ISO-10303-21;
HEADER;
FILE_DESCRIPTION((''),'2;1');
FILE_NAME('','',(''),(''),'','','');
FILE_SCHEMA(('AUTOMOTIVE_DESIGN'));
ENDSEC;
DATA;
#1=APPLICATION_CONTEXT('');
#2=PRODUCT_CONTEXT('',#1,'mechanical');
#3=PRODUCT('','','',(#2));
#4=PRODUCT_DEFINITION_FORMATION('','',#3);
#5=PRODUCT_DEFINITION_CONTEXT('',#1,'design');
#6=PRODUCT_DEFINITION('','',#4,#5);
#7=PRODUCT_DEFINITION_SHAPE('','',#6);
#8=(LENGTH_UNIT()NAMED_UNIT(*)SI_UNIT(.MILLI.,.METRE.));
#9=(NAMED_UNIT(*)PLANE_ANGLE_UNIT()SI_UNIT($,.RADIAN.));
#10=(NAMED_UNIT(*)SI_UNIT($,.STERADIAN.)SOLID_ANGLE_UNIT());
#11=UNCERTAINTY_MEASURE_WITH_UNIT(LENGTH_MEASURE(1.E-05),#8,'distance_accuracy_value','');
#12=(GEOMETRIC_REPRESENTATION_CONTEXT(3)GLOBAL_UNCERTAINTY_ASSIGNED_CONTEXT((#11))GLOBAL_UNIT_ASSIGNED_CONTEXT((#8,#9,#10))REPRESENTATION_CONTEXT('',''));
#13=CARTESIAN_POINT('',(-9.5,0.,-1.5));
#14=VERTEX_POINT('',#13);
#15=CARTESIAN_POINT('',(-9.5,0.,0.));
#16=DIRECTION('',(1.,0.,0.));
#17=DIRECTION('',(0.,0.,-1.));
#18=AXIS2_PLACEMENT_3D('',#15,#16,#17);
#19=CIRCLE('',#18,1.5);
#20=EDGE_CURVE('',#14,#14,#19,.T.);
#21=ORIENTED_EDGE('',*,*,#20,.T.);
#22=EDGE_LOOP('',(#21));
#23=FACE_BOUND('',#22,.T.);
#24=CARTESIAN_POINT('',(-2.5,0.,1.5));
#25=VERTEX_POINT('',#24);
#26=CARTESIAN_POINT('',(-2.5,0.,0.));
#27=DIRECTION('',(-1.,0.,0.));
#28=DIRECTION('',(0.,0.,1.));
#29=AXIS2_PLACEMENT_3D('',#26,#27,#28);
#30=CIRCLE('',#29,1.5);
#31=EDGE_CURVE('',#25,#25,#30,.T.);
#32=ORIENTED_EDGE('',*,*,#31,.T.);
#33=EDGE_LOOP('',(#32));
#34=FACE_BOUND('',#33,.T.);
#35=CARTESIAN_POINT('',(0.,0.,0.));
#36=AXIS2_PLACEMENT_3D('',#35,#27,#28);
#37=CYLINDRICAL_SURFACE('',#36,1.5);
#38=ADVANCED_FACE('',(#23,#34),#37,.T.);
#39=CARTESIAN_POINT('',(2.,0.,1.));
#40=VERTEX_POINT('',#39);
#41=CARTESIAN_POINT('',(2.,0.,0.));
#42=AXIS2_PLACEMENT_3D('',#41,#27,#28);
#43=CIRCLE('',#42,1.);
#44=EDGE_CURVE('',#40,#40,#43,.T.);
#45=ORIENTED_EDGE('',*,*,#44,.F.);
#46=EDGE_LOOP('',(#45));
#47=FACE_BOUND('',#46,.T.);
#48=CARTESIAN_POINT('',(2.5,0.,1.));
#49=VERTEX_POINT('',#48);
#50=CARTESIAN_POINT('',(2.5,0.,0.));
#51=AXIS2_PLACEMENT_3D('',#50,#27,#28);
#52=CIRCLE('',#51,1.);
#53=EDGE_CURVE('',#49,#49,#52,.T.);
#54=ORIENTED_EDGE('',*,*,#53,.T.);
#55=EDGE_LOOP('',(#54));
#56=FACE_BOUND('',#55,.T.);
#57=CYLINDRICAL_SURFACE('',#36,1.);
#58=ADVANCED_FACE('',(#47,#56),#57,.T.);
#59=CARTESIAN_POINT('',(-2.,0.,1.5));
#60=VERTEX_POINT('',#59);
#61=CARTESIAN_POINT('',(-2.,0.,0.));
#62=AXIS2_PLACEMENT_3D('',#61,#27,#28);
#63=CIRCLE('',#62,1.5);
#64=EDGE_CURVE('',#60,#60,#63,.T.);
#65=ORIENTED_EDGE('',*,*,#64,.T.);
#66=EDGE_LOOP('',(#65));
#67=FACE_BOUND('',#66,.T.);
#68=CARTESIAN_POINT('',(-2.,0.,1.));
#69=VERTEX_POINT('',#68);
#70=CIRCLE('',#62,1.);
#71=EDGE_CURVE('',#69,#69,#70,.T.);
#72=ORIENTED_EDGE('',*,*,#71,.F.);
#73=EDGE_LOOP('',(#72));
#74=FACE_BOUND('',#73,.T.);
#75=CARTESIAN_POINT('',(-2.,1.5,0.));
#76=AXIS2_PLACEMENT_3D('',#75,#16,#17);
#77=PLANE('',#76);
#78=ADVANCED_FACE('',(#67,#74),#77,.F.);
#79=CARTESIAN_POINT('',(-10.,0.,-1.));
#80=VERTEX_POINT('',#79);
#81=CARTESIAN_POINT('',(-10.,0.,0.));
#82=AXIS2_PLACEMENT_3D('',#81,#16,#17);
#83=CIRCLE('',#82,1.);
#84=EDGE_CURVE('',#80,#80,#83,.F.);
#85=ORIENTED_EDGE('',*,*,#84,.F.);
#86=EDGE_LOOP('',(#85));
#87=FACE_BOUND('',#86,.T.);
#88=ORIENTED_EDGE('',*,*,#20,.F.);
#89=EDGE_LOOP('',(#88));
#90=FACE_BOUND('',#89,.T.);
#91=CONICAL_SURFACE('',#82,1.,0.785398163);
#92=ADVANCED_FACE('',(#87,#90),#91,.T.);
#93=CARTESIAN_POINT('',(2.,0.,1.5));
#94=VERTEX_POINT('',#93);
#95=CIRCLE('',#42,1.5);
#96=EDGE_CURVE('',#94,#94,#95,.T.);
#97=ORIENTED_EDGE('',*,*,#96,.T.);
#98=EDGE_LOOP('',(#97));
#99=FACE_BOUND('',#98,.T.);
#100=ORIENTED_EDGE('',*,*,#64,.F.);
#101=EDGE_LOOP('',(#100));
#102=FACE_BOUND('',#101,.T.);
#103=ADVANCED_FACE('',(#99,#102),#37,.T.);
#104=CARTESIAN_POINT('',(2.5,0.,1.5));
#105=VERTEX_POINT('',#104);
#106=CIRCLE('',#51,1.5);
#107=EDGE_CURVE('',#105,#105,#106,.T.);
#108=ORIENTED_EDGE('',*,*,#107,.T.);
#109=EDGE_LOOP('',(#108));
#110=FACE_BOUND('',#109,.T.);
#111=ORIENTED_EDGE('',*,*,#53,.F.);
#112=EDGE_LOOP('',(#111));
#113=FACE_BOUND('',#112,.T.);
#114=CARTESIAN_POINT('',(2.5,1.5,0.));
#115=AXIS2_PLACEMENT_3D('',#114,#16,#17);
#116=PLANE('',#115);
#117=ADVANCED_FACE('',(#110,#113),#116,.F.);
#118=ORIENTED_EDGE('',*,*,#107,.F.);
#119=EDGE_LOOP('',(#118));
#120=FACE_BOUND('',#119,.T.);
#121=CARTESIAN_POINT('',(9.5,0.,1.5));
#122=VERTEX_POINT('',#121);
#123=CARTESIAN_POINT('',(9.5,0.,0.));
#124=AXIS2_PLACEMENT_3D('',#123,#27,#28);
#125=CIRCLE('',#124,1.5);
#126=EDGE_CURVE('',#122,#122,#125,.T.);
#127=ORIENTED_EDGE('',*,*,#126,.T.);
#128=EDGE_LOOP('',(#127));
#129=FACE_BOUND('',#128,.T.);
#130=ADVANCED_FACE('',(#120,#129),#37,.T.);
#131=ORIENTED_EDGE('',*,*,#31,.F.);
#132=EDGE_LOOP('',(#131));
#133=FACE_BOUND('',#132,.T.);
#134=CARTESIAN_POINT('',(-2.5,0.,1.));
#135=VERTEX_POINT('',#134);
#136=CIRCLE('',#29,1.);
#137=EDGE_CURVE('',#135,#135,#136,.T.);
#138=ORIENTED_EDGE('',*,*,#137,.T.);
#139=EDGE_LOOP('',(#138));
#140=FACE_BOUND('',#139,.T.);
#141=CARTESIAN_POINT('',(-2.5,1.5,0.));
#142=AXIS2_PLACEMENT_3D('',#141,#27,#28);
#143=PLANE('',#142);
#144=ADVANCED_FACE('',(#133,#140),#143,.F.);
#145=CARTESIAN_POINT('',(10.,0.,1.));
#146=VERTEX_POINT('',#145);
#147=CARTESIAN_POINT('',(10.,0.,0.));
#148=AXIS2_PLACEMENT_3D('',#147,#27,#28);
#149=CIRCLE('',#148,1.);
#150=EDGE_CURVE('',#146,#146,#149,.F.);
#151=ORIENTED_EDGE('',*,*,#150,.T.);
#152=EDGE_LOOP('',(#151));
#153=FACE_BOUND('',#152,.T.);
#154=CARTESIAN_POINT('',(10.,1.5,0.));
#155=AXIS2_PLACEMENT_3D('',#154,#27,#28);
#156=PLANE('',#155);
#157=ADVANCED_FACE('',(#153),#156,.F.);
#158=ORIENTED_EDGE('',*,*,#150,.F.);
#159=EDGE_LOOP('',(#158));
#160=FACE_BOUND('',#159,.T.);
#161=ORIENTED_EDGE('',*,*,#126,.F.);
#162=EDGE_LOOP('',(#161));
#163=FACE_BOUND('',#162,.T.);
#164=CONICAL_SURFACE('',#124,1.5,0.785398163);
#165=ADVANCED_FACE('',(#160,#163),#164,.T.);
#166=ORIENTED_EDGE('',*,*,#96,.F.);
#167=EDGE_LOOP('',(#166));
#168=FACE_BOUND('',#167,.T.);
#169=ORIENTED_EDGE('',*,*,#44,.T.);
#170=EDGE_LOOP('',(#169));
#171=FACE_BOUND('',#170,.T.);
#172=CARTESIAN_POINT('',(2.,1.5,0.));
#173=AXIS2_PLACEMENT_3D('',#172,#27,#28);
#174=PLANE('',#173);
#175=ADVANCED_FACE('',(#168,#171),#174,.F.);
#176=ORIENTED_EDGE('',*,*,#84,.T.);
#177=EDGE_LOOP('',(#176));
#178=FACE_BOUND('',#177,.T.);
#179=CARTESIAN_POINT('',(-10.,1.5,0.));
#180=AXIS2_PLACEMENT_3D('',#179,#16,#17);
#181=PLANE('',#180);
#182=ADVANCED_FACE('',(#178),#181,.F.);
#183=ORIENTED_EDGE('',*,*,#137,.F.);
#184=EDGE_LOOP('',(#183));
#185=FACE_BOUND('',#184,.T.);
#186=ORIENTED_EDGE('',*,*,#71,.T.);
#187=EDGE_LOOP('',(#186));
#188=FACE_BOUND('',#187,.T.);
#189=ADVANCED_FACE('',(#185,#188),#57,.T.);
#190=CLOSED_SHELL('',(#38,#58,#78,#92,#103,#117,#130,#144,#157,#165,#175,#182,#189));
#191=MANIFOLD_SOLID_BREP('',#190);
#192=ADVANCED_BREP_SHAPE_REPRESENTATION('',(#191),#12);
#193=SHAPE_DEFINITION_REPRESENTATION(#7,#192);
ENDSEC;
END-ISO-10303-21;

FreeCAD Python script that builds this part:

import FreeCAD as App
import Part
import Sketcher
from FreeCAD import Vector


def edges_at(feature, points):
    """Names of the edges that pass closest to the given points."""
    edges = feature.Shape.Edges
    near = lambda p: min(range(len(edges)), key=lambda i: edges[i].distToShape(Part.Vertex(*p))[0])
    return sorted({f"Edge{near(p) + 1}" for p in points})

doc = App.newDocument("Part")
params = doc.addObject("Spreadsheet::Sheet", "Params")
for row, (alias, value) in enumerate([
    ("sketch1_width", "20 mm"),
    ("sketch1_width2", "4 mm"),
    ("sketch1_width3", "7.5 mm"),
    ("sketch1_height", "1.5 mm"),
    ("revolution_angle", "360 deg"),
    ("chamfer_size", "0.5 mm"),
], start=1):
    params.set(f"A{row}", alias)
    params.set(f"B{row}", "=" + value)
    params.setAlias(f"B{row}", alias)

body = doc.addObject("PartDesign::Body", "Body")

# Sketch on XY plane
sketch1 = body.newObject("Sketcher::SketchObject", "Sketch")
sketch1.AttachmentSupport = (doc.getObject("XY_Plane"), [""])
sketch1.MapMode = "FlatFace"
sketch1.addGeometry([
    Part.LineSegment(Vector(-2.5, 1.5, 0), Vector(-10, 1.5, 0)),  # 0
    Part.LineSegment(Vector(-10, 1.5, 0), Vector(-10, 0, 0)),  # 1
    Part.LineSegment(Vector(-10, 0, 0), Vector(10, 0, 0)),  # 2
    Part.LineSegment(Vector(10, 0, 0), Vector(10, 1.5, 0)),  # 3
    Part.LineSegment(Vector(10, 1.5, 0), Vector(2.5, 1.5, 0)),  # 4
    Part.LineSegment(Vector(2.5, 1.5, 0), Vector(2.5, 1, 0)),  # 5
    Part.LineSegment(Vector(2.5, 1, 0), Vector(2, 1, 0)),  # 6
    Part.LineSegment(Vector(2, 1, 0), Vector(2, 1.5, 0)),  # 7
    Part.LineSegment(Vector(2, 1.5, 0), Vector(-2, 1.5, 0)),  # 8
    Part.LineSegment(Vector(-2, 1.5, 0), Vector(-2, 1, 0)),  # 9
    Part.LineSegment(Vector(-2, 1, 0), Vector(-2.5, 1, 0)),  # 10
    Part.LineSegment(Vector(-2.5, 1, 0), Vector(-2.5, 1.5, 0)),  # 11
], False)
sketch1.addConstraint([
    Sketcher.Constraint("Coincident", 0, 2, 1, 1),
    Sketcher.Constraint("Coincident", 1, 2, 2, 1),
    Sketcher.Constraint("Coincident", 2, 2, 3, 1),
    Sketcher.Constraint("Coincident", 3, 2, 4, 1),
    Sketcher.Constraint("Coincident", 4, 2, 5, 1),
    Sketcher.Constraint("Coincident", 5, 2, 6, 1),
    Sketcher.Constraint("Coincident", 6, 2, 7, 1),
    Sketcher.Constraint("Coincident", 7, 2, 8, 1),
    Sketcher.Constraint("Coincident", 8, 2, 9, 1),
    Sketcher.Constraint("Coincident", 9, 2, 10, 1),
    Sketcher.Constraint("Coincident", 10, 2, 11, 1),
    Sketcher.Constraint("Coincident", 11, 2, 0, 1),
    Sketcher.Constraint("Horizontal", 0),
    Sketcher.Constraint("Vertical", 1),
    Sketcher.Constraint("Horizontal", 2),
    Sketcher.Constraint("Vertical", 3),
    Sketcher.Constraint("Horizontal", 4),
    Sketcher.Constraint("Vertical", 5),
    Sketcher.Constraint("Horizontal", 6),
    Sketcher.Constraint("Vertical", 7),
    Sketcher.Constraint("Horizontal", 8),
    Sketcher.Constraint("Vertical", 9),
    Sketcher.Constraint("Horizontal", 10),
    Sketcher.Constraint("Vertical", 11),
    Sketcher.Constraint("Symmetric", 1, 2, 2, 2, -1, 1),
    Sketcher.Constraint("Symmetric", 6, 2, 9, 2, -2),
    Sketcher.Constraint("Symmetric", 4, 2, 11, 2, -2),
    Sketcher.Constraint("Horizontal", 4, 2, 7, 2),
    Sketcher.Constraint("Equal", 10, 5),
    Sketcher.Constraint("DistanceX", 2, 1, 2, 2, 20.0),
    Sketcher.Constraint("DistanceX", 8, 2, 8, 1, 4.0),
    Sketcher.Constraint("DistanceX", 0, 2, 0, 1, 7.5),
    Sketcher.Constraint("DistanceY", 1, 2, 1, 1, 1.5),
])
sketch1.setExpression("Constraints[29]", "Params.sketch1_width")
sketch1.setExpression("Constraints[30]", "Params.sketch1_width2")
sketch1.setExpression("Constraints[31]", "Params.sketch1_width3")
sketch1.setExpression("Constraints[32]", "Params.sketch1_height")
revolution = body.newObject("PartDesign::Revolution", "Revolution")
revolution.Profile = sketch1
revolution.ReferenceAxis = (sketch1, ["H_Axis"])
revolution.setExpression("Angle", "Params.revolution_angle")
doc.recompute()

chamfer = body.newObject("PartDesign::Chamfer", "Chamfer")
chamfer.Base = (revolution, edges_at(revolution, [(10, -1.5, 0), (-10, -1.5, 0)]))
chamfer.setExpression("Size", "Params.chamfer_size")

doc.recompute()
